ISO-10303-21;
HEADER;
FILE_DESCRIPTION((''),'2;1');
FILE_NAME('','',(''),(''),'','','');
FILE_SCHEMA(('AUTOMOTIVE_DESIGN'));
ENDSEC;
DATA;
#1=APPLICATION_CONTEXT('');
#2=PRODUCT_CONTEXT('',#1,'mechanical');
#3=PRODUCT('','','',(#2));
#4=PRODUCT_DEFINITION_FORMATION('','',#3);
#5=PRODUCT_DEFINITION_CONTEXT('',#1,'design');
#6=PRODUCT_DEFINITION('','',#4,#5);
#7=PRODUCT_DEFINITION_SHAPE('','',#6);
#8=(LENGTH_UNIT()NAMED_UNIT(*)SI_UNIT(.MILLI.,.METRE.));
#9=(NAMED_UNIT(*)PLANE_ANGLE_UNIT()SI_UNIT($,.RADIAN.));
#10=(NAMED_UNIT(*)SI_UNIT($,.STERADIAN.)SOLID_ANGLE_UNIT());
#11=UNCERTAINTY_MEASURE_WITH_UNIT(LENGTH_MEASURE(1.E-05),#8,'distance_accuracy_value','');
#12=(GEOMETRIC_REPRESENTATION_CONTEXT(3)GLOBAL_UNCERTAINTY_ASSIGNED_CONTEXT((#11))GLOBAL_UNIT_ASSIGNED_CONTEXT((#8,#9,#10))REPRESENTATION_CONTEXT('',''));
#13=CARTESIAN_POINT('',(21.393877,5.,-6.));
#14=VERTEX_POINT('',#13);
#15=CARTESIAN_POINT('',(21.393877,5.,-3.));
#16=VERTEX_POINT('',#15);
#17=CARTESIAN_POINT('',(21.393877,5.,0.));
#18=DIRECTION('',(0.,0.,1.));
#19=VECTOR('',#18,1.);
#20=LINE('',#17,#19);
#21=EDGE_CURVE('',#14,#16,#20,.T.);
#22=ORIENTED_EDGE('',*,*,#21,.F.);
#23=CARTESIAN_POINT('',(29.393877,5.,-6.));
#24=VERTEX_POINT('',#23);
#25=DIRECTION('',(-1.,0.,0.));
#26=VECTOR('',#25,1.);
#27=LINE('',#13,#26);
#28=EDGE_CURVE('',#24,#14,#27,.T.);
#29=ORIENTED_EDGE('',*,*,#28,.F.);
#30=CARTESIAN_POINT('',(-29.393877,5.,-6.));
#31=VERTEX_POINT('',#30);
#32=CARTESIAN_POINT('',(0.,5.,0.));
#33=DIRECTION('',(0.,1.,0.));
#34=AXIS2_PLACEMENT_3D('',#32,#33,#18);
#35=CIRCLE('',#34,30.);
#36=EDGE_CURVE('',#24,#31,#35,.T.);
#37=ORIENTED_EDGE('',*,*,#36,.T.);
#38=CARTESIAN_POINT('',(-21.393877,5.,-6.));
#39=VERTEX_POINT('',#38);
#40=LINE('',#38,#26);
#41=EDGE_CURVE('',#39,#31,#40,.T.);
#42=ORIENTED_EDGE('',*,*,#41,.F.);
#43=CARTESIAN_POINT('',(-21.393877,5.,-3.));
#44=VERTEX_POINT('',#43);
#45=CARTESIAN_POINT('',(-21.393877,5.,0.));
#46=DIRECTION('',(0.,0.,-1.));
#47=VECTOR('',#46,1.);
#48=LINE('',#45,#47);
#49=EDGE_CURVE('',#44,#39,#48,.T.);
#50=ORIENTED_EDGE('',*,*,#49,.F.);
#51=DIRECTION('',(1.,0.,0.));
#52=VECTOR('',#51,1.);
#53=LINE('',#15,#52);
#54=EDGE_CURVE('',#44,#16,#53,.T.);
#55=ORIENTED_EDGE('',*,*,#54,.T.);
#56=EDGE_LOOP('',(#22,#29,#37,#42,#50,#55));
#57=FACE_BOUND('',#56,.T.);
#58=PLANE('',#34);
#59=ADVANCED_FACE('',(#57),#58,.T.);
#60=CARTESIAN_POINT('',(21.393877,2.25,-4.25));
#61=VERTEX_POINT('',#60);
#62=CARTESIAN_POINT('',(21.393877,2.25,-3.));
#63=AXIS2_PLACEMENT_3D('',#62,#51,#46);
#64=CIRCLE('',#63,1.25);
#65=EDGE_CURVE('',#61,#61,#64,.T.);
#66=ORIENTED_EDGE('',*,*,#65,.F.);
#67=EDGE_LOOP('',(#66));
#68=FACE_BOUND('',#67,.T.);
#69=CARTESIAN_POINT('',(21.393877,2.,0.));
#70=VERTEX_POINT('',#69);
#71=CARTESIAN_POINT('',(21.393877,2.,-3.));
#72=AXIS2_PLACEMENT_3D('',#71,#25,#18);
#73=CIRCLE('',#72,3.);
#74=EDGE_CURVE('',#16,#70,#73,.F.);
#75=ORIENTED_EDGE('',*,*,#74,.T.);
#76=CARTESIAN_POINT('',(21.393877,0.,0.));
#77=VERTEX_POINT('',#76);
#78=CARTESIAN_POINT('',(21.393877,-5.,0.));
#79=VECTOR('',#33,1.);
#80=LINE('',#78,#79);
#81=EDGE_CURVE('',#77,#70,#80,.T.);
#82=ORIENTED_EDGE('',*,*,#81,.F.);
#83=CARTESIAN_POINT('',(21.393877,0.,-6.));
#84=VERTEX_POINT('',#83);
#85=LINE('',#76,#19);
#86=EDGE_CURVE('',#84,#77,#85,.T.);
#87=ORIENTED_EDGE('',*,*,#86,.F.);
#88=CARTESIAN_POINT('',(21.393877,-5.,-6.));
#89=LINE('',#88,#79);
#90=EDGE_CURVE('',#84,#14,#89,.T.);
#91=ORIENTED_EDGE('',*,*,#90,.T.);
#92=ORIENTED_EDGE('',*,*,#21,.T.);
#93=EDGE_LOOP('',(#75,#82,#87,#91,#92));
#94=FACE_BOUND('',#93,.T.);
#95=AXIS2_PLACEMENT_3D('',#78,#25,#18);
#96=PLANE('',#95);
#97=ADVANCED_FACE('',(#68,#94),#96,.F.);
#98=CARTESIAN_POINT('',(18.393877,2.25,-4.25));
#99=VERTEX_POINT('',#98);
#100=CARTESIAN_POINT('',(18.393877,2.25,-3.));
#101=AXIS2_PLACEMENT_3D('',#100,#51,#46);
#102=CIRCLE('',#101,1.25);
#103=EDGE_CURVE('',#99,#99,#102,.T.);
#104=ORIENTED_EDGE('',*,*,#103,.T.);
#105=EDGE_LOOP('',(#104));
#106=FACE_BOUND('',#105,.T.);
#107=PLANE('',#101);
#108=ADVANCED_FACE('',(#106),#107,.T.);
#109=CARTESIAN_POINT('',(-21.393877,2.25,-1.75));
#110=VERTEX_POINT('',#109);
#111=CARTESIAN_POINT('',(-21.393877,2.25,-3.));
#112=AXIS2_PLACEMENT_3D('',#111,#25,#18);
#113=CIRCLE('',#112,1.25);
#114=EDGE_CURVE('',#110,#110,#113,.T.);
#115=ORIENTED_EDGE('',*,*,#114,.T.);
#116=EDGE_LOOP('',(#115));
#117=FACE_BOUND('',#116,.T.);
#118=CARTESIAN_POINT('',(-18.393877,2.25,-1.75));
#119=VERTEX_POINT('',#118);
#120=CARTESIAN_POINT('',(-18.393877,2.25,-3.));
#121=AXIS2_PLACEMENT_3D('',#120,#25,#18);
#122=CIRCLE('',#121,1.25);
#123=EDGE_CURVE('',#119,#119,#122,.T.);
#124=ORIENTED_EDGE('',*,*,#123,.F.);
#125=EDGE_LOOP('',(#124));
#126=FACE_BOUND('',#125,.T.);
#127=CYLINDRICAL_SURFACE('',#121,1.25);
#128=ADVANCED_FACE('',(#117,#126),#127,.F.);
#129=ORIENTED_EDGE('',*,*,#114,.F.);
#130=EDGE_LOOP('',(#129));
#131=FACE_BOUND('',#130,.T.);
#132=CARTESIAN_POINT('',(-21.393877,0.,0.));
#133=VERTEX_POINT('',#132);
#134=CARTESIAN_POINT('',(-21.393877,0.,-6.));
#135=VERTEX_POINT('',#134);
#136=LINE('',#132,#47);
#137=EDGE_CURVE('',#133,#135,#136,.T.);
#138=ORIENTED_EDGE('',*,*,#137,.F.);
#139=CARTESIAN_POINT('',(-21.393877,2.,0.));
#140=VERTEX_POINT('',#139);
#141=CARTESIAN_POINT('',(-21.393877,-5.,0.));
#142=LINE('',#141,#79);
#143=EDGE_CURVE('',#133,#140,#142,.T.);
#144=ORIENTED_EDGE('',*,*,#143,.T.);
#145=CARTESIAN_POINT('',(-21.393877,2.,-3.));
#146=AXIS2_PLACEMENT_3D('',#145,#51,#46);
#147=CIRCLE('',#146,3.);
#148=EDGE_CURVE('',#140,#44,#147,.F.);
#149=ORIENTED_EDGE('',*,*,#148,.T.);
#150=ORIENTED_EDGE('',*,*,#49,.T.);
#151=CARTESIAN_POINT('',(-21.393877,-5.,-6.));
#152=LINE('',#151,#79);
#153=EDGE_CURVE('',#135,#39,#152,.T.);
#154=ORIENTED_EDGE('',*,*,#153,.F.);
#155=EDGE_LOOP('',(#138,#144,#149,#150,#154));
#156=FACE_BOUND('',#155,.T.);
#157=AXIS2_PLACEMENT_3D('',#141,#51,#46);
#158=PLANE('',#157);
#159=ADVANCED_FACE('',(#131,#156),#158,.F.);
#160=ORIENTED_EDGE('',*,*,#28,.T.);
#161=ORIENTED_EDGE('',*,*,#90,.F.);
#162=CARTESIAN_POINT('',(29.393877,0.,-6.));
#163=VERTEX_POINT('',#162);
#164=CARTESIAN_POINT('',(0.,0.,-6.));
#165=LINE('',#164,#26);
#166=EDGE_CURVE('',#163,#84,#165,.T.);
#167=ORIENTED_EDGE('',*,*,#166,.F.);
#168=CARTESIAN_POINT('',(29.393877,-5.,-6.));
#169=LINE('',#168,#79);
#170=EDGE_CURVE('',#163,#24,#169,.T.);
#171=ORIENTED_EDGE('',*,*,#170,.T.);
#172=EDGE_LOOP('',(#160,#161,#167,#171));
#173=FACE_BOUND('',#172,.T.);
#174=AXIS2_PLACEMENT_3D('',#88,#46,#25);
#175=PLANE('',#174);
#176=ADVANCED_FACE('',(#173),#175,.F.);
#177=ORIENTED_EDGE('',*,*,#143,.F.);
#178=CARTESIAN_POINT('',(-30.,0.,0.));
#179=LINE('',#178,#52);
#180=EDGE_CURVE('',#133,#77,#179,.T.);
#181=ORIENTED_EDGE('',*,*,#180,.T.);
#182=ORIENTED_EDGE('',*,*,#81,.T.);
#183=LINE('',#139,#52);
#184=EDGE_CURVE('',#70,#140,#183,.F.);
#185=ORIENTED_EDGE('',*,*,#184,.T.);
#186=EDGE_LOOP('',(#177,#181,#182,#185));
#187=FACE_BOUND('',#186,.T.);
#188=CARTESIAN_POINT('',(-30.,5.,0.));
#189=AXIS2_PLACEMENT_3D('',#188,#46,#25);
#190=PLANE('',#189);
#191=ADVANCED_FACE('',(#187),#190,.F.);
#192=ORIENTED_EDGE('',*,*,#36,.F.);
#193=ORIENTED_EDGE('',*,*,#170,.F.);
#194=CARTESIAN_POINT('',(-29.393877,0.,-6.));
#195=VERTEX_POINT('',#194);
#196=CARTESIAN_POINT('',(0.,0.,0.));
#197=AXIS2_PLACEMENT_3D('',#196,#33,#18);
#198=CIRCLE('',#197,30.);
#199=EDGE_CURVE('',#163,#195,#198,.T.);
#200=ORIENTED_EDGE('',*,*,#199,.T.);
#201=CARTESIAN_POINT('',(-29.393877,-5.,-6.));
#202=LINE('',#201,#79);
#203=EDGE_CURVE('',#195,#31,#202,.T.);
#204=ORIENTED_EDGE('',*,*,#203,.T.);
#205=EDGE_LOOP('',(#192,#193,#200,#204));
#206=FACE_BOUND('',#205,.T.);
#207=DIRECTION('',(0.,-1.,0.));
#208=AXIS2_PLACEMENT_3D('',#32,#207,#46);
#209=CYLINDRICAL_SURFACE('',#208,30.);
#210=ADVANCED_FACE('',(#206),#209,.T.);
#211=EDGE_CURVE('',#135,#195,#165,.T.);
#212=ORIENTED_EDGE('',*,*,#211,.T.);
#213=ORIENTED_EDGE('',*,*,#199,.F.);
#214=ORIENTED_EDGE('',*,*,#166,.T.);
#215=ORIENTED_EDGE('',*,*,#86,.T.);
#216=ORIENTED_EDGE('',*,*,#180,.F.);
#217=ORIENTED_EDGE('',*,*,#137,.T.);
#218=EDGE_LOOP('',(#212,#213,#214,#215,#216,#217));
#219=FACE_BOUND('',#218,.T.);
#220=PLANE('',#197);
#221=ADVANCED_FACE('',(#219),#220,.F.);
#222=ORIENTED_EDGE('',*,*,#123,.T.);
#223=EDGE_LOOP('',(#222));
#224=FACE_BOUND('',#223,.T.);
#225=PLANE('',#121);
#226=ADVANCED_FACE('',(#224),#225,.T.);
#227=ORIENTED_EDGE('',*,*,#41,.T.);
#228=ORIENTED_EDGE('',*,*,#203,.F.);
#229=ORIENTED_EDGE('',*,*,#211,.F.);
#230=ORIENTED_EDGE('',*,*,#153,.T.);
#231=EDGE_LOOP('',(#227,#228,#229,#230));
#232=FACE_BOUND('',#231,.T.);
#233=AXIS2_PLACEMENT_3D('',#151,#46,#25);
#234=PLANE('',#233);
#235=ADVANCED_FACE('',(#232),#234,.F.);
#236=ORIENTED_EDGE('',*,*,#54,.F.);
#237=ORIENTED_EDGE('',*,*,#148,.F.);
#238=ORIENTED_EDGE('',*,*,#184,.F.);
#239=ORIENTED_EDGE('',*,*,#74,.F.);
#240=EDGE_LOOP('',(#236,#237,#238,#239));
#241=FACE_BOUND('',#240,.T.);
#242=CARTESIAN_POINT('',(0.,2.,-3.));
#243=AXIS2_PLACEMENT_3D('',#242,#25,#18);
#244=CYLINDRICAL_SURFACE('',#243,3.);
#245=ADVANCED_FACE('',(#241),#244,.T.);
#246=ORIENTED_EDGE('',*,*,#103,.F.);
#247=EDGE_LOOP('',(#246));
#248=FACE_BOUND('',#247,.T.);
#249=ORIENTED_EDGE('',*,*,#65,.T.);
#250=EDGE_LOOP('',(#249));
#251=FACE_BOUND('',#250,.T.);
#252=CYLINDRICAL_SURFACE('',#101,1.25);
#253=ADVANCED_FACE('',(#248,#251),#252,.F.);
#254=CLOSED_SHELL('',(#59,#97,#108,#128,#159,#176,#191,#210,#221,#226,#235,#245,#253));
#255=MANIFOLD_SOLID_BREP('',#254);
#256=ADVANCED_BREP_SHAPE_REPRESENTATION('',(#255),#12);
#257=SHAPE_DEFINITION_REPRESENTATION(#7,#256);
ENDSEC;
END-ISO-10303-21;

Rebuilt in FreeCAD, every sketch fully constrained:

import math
import FreeCAD as App
import Part
import Sketcher


def edges_at(feature, points):
    """Names of the edges that pass closest to the given points."""
    edges = feature.Shape.Edges
    near = lambda p: min(range(len(edges)), key=lambda i: edges[i].distToShape(Part.Vertex(*p))[0])
    return sorted({f"Edge{near(p) + 1}" for p in points})

doc = App.newDocument("Part")
body = doc.addObject("PartDesign::Body", "Body")

# Sketch on XZ plane
sketch1 = body.newObject("Sketcher::SketchObject", "Sketch")
sketch1.AttachmentSupport = (doc.getObject("XZ_Plane"), [""])
sketch1.MapMode = "FlatFace"
sketch1.addGeometry(Part.LineSegment(App.Vector(-30, 0, 0), App.Vector(30, 0, 0)), False)
sketch1.addGeometry(Part.ArcOfCircle(Part.Circle(App.Vector(0, 0, 0), App.Vector(0, 0, 1), 30), math.radians(180), math.radians(360)), False)
sketch1.addConstraint(Sketcher.Constraint("Coincident", 0, 1, 1, 1))
sketch1.addConstraint(Sketcher.Constraint("Coincident", 1, 2, 0, 2))
sketch1.addConstraint(Sketcher.Constraint("Horizontal", 0))
sketch1.addConstraint(Sketcher.Constraint("Coincident", 1, 3, -1, 1))
sketch1.addConstraint(Sketcher.Constraint("PointOnObject", 0, 1, -1))
sketch1.addConstraint(Sketcher.Constraint("Radius", 1, 30.0))
pad1 = body.newObject("PartDesign::Pad", "Pad")
pad1.Profile = sketch1
pad1.Length = 5
pad1.Reversed = True

# Sketch on XZ plane
sketch2 = body.newObject("Sketcher::SketchObject", "Sketch001")
sketch2.AttachmentSupport = (doc.getObject("XZ_Plane"), [""])
sketch2.MapMode = "FlatFace"
sketch2.AttachmentOffset = App.Placement(App.Vector(0, 0, 5), App.Rotation())
sketch2.addGeometry(Part.LineSegment(App.Vector(-21, 0, 0), App.Vector(-21, -6, 0)), False)
sketch2.addGeometry(Part.LineSegment(App.Vector(-21, -6, 0), App.Vector(-29, -6, 0)), False)
sketch2.addGeometry(Part.ArcOfCircle(Part.Circle(App.Vector(0, 0, 0), App.Vector(0, 0, 1), 30), math.radians(-180), math.radians(-168.46)), False)
sketch2.addGeometry(Part.LineSegment(App.Vector(-30, 0, 0), App.Vector(-21, 0, 0)), False)
sketch2.addGeometry(Part.LineSegment(App.Vector(29, -6, 0), App.Vector(21, -6, 0)), False)
sketch2.addGeometry(Part.LineSegment(App.Vector(21, -6, 0), App.Vector(21, 0, 0)), False)
sketch2.addGeometry(Part.LineSegment(App.Vector(21, 0, 0), App.Vector(30, 0, 0)), False)
sketch2.addGeometry(Part.ArcOfCircle(Part.Circle(App.Vector(0, 0, 0), App.Vector(0, 0, 1), 30), math.radians(-11.54), math.radians(0)), False)
sketch2.addConstraint(Sketcher.Constraint("Coincident", 0, 2, 1, 1))
sketch2.addConstraint(Sketcher.Constraint("Coincident", 1, 2, 2, 2))
sketch2.addConstraint(Sketcher.Constraint("Coincident", 2, 1, 3, 1))
sketch2.addConstraint(Sketcher.Constraint("Coincident", 3, 2, 0, 1))
sketch2.addConstraint(Sketcher.Constraint("Coincident", 4, 2, 5, 1))
sketch2.addConstraint(Sketcher.Constraint("Coincident", 5, 2, 6, 1))
sketch2.addConstraint(Sketcher.Constraint("Coincident", 6, 2, 7, 2))
sketch2.addConstraint(Sketcher.Constraint("Coincident", 7, 1, 4, 1))
sketch2.addConstraint(Sketcher.Constraint("Vertical", 0))
sketch2.addConstraint(Sketcher.Constraint("Horizontal", 1))
sketch2.addConstraint(Sketcher.Constraint("Horizontal", 3))
sketch2.addConstraint(Sketcher.Constraint("Horizontal", 4))
sketch2.addConstraint(Sketcher.Constraint("Vertical", 5))
sketch2.addConstraint(Sketcher.Constraint("Horizontal", 6))
sketch2.addConstraint(Sketcher.Constraint("Coincident", 2, 3, -1, 1))
sketch2.addConstraint(Sketcher.Constraint("Coincident", 7, 3, -1, 1))
sketch2.addConstraint(Sketcher.Constraint("Equal", 2, 7))
sketch2.addConstraint(Sketcher.Constraint("Symmetric", 3, 2, 5, 2, -1, 1))
sketch2.addConstraint(Sketcher.Constraint("PointOnObject", 2, 1, -1))
sketch2.addConstraint(Sketcher.Constraint("Horizontal", 1, 2, 4, 2))
sketch2.addConstraint(Sketcher.Constraint("Radius", 2, 30.0))
sketch2.addConstraint(Sketcher.Constraint("DistanceX", 1, 2, 1, 1, 8.0))
sketch2.addConstraint(Sketcher.Constraint("DistanceY", 0, 2, 0, 1, 6.0))
pocket1 = body.newObject("PartDesign::Pocket", "Pocket")
pocket1.Profile = sketch2
pocket1.Length = 10
doc.recompute()

fillet = body.newObject("PartDesign::Fillet", "Fillet")
fillet.Base = (pocket1, edges_at(pocket1, [(0, 5, 0)]))
fillet.Radius = 3

# Sketch on YZ plane
sketch3 = body.newObject("Sketcher::SketchObject", "Sketch002")
sketch3.AttachmentSupport = (doc.getObject("YZ_Plane"), [""])
sketch3.MapMode = "FlatFace"
sketch3.AttachmentOffset = App.Placement(App.Vector(0, 0, 21.393877), App.Rotation())
sketch3.addGeometry(Part.Circle(App.Vector(2.2, -3, 0), App.Vector(0, 0, 1), 1.2), False)
sketch3.addConstraint(Sketcher.Constraint("Diameter", 0, 2.5))
sketch3.addConstraint(Sketcher.Constraint("DistanceY", 0, 3, -1, 1, 3.0))
sketch3.addConstraint(Sketcher.Constraint("DistanceX", -1, 1, 0, 3, 2.25))
pocket2 = body.newObject("PartDesign::Pocket", "Pocket001")
pocket2.Profile = sketch3
pocket2.Length = 3

# Sketch on YZ plane
sketch4 = body.newObject("Sketcher::SketchObject", "Sketch003")
sketch4.AttachmentSupport = (doc.getObject("YZ_Plane"), [""])
sketch4.MapMode = "FlatFace"
sketch4.AttachmentOffset = App.Placement(App.Vector(0, 0, -18.393877), App.Rotation())
sketch4.addGeometry(Part.Circle(App.Vector(2.2, -3, 0), App.Vector(0, 0, 1), 1.2), False)
sketch4.addConstraint(Sketcher.Constraint("Diameter", 0, 2.5))
sketch4.addConstraint(Sketcher.Constraint("DistanceY", 0, 3, -1, 1, 3.0))
sketch4.addConstraint(Sketcher.Constraint("DistanceX", -1, 1, 0, 3, 2.25))
pocket3 = body.newObject("PartDesign::Pocket", "Pocket002")
pocket3.Profile = sketch4
pocket3.Length = 3

doc.recompute()
